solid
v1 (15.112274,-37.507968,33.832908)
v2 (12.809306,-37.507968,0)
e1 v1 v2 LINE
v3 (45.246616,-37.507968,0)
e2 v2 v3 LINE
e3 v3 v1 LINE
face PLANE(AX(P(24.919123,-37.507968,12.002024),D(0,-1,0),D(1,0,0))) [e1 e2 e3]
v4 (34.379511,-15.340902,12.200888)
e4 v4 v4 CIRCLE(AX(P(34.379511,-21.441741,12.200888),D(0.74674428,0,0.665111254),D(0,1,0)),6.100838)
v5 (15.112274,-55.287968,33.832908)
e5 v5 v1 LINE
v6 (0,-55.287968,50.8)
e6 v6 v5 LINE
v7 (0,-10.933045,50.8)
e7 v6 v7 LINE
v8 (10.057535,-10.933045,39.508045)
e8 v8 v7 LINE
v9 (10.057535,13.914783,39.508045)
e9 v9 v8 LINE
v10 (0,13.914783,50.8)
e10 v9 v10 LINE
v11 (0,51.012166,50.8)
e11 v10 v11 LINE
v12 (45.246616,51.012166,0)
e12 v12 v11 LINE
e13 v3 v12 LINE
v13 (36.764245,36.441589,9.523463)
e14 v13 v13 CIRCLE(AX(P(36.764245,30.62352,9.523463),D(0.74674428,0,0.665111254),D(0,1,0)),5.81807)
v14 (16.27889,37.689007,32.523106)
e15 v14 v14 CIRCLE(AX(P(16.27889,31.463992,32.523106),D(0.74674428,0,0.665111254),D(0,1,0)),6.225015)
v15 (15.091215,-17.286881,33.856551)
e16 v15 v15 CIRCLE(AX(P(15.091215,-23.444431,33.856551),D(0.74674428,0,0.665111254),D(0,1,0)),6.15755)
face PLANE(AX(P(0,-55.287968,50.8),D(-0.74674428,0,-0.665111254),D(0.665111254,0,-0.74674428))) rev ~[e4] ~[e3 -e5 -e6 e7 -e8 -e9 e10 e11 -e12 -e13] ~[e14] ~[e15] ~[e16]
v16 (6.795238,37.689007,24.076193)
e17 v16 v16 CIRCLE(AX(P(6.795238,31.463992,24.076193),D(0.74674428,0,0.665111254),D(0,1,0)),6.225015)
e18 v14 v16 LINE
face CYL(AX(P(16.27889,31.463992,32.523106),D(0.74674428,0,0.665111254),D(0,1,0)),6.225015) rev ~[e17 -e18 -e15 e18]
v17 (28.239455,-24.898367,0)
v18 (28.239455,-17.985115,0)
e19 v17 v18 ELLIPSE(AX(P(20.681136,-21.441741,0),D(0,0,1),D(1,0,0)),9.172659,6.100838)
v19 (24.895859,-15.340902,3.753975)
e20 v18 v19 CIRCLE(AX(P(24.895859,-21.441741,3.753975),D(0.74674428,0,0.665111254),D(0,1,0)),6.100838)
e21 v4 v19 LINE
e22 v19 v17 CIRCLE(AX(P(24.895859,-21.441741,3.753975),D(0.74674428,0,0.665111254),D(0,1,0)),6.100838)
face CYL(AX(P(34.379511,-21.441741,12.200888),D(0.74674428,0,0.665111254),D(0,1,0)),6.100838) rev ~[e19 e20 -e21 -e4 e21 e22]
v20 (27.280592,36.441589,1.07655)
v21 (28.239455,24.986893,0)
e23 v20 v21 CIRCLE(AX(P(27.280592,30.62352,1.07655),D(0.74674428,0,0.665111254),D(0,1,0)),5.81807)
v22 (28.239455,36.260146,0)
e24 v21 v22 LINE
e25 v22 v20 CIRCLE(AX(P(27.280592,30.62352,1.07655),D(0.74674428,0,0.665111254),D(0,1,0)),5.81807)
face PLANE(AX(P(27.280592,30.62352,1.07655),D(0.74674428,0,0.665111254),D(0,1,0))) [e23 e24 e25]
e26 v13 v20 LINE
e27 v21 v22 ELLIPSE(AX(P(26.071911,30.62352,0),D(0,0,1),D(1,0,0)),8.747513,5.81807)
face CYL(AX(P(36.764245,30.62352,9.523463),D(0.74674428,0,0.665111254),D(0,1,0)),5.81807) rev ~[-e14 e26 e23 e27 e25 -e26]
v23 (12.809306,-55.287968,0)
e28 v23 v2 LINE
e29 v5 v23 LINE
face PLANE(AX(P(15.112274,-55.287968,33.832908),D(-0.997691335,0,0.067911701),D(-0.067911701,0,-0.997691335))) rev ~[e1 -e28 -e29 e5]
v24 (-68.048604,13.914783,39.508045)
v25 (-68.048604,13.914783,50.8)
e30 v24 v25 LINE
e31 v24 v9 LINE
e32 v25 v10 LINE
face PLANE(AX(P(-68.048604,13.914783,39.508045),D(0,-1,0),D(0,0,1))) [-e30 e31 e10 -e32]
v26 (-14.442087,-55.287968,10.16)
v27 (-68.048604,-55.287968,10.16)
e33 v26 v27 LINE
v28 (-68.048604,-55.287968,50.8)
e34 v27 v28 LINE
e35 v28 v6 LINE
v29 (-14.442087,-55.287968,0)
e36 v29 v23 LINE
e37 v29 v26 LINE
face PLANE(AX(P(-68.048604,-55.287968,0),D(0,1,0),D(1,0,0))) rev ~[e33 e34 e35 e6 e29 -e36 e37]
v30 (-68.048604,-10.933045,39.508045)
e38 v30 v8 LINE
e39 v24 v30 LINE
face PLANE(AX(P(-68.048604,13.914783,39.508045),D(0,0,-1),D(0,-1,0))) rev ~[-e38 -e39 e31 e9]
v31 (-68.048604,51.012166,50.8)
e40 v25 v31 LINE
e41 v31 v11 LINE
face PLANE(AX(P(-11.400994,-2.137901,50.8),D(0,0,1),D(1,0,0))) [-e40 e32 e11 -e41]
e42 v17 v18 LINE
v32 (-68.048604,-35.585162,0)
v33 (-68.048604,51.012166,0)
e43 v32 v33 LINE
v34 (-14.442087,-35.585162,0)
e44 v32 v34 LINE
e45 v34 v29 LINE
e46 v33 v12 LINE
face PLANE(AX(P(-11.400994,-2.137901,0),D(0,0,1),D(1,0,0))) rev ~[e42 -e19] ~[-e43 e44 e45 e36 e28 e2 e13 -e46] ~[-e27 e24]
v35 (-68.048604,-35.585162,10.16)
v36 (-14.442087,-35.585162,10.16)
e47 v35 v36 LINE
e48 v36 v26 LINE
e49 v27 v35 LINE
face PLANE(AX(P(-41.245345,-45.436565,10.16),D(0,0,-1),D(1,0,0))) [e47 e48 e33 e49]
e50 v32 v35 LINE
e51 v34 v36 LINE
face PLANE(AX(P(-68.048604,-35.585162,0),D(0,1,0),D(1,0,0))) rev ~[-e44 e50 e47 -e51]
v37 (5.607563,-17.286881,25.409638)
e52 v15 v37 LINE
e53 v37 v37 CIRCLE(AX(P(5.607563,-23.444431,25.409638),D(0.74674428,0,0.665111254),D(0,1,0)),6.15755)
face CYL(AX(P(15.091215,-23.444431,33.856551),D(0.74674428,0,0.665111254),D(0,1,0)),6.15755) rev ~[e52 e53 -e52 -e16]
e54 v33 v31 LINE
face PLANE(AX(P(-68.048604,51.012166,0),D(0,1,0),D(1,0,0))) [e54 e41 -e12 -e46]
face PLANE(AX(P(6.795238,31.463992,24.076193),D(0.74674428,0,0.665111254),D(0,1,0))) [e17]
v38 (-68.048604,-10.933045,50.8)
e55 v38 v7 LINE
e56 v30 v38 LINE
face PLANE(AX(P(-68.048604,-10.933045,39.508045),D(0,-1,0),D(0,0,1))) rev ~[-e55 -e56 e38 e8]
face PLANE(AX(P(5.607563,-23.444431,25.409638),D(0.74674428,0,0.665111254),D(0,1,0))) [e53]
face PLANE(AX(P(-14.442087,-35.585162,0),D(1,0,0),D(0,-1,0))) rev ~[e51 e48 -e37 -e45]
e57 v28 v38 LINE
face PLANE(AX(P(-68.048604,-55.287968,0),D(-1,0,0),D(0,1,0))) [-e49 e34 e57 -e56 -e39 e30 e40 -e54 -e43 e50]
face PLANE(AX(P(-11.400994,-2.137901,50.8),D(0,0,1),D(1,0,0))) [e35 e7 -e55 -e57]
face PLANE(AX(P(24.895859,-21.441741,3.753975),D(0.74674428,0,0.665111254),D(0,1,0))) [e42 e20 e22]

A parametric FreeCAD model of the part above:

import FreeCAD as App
import Part
import Sketcher
Q = App.Units.Quantity

doc = App.newDocument("Part")
body = doc.addObject("PartDesign::Body", "Body")

# Sketch on XY plane
sketch1 = body.newObject("Sketcher::SketchObject", "Sketch")
sketch1.AttachmentSupport = (doc.getObject("XY_Plane"), [""])
sketch1.MapMode = "FlatFace"
sketch1.addGeometry(Part.LineSegment(App.Vector(-68, 51, 0), App.Vector(-68, -55, 0)), False)
sketch1.addGeometry(Part.LineSegment(App.Vector(-68, -55, 0), App.Vector(45, -55, 0)), False)
sketch1.addGeometry(Part.LineSegment(App.Vector(45, -55, 0), App.Vector(45, 51, 0)), False)
sketch1.addGeometry(Part.LineSegment(App.Vector(45, 51, 0), App.Vector(-68, 51, 0)), False)
sketch1.addConstraint(Sketcher.Constraint("Coincident", 0, 2, 1, 1))
sketch1.addConstraint(Sketcher.Constraint("Coincident", 1, 2, 2, 1))
sketch1.addConstraint(Sketcher.Constraint("Coincident", 2, 2, 3, 1))
sketch1.addConstraint(Sketcher.Constraint("Coincident", 3, 2, 0, 1))
sketch1.addConstraint(Sketcher.Constraint("Vertical", 0))
sketch1.addConstraint(Sketcher.Constraint("Horizontal", 1))
sketch1.addConstraint(Sketcher.Constraint("Vertical", 2))
sketch1.addConstraint(Sketcher.Constraint("Horizontal", 3))
sketch1.addConstraint(Sketcher.Constraint("DistanceX", 1, 1, 1, 2, Q("113.29522 mm")))
sketch1.addConstraint(Sketcher.Constraint("DistanceY", 0, 2, 0, 1, Q("106.300134 mm")))
sketch1.addConstraint(Sketcher.Constraint("DistanceY", 0, 2, -1, 1, Q("55.287968 mm")))
sketch1.addConstraint(Sketcher.Constraint("DistanceX", 0, 2, -1, 1, Q("68.048604 mm")))
pad1 = body.newObject("PartDesign::Pad", "Pad")
pad1.Profile = sketch1
pad1.Length = Q("2 in")

# Sketch on XZ plane
sketch2 = body.newObject("Sketcher::SketchObject", "Sketch001")
sketch2.AttachmentSupport = (doc.getObject("XZ_Plane"), [""])
sketch2.MapMode = "FlatFace"
sketch2.AttachmentOffset = App.Placement(App.Vector(0, 0, 55.287968), App.Rotation())
sketch2.addGeometry(Part.LineSegment(App.Vector(0, 51, 0), App.Vector(45, 0, 0)), False)
sketch2.addGeometry(Part.LineSegment(App.Vector(45, 0, 0), App.Vector(45, 51, 0)), False)
sketch2.addGeometry(Part.LineSegment(App.Vector(45, 51, 0), App.Vector(0, 51, 0)), False)
sketch2.addConstraint(Sketcher.Constraint("Coincident", 0, 2, 1, 1))
sketch2.addConstraint(Sketcher.Constraint("Coincident", 1, 2, 2, 1))
sketch2.addConstraint(Sketcher.Constraint("Coincident", 2, 2, 0, 1))
sketch2.addConstraint(Sketcher.Constraint("Vertical", 1))
sketch2.addConstraint(Sketcher.Constraint("Horizontal", 2))
sketch2.addConstraint(Sketcher.Constraint("PointOnObject", 0, 2, -1))
sketch2.addConstraint(Sketcher.Constraint("PointOnObject", 2, 2, -2))
sketch2.addConstraint(Sketcher.Constraint("DistanceY", 1, 1, 1, 2, Q("2 in")))
sketch2.addConstraint(Sketcher.Constraint("DistanceX", 2, 2, 2, 1, Q("45.246616 mm")))
pocket1 = body.newObject("PartDesign::Pocket", "Pocket")
pocket1.Profile = sketch2
pocket1.Type = "ThroughAll"

# Sketch on YZ plane
sketch3 = body.newObject("Sketcher::SketchObject", "Sketch002")
sketch3.AttachmentSupport = (doc.getObject("YZ_Plane"), [""])
sketch3.MapMode = "FlatFace"
sketch3.AttachmentOffset = App.Placement(App.Vector(0, 0, -68.048604), App.Rotation())
sketch3.addGeometry(Part.LineSegment(App.Vector(14, 51, 0), App.Vector(14, 40, 0)), False)
sketch3.addGeometry(Part.LineSegment(App.Vector(14, 40, 0), App.Vector(-11, 40, 0)), False)
sketch3.addGeometry(Part.LineSegment(App.Vector(-11, 40, 0), App.Vector(-11, 51, 0)), False)
sketch3.addGeometry(Part.LineSegment(App.Vector(-11, 51, 0), App.Vector(14, 51, 0)), False)
sketch3.addConstraint(Sketcher.Constraint("Coincident", 0, 2, 1, 1))
sketch3.addConstraint(Sketcher.Constraint("Coincident", 1, 2, 2, 1))
sketch3.addConstraint(Sketcher.Constraint("Coincident", 2, 2, 3, 1))
sketch3.addConstraint(Sketcher.Constraint("Coincident", 3, 2, 0, 1))
sketch3.addConstraint(Sketcher.Constraint("Vertical", 0))
sketch3.addConstraint(Sketcher.Constraint("Horizontal", 1))
sketch3.addConstraint(Sketcher.Constraint("Vertical", 2))
sketch3.addConstraint(Sketcher.Constraint("Horizontal", 3))
sketch3.addConstraint(Sketcher.Constraint("DistanceY", -1, 1, 2, 2, Q("2 in")))
sketch3.addConstraint(Sketcher.Constraint("DistanceX", 1, 2, 1, 1, Q("24.847828 mm")))
sketch3.addConstraint(Sketcher.Constraint("DistanceY", 0, 2, 0, 1, Q("11.291955 mm")))
sketch3.addConstraint(Sketcher.Constraint("DistanceX", -1, 1, 0, 2, Q("13.914783 mm")))
pocket2 = body.newObject("PartDesign::Pocket", "Pocket001")
pocket2.Profile = sketch3
pocket2.Type = "ThroughAll"
pocket2.Reversed = True

# Sketch on an angled plane
sketch4 = body.newObject("Sketcher::SketchObject", "Sketch003")
sketch4.Placement = App.Placement(App.Vector(25.230736, 0, 22.472547), App.Rotation(App.Vector(0, 1, 0), App.Vector(-0.665111254, 0, 0.74674428), App.Vector(0.74674428, 0, 0.665111254), "ZXY"))
sketch4.addGeometry(Part.Circle(App.Vector(-23, 15, 0), App.Vector(0, 0, 1), 6), False)
sketch4.addGeometry(Part.Circle(App.Vector(-21, -14, 0), App.Vector(0, 0, 1), 6), False)
sketch4.addGeometry(Part.Circle(App.Vector(31, 13, 0), App.Vector(0, 0, 1), 6), False)
sketch4.addGeometry(Part.Circle(App.Vector(31, -17, 0), App.Vector(0, 0, 1), 6), False)
sketch4.addConstraint(Sketcher.Constraint("Diameter", 0, Q("12.315099 mm")))
sketch4.addConstraint(Sketcher.Constraint("Diameter", 2, Q("12.450031 mm")))
sketch4.addConstraint(Sketcher.Constraint("Diameter", 3, Q("11.636139 mm")))
sketch4.addConstraint(Sketcher.Constraint("Diameter", 1, Q("12.201677 mm")))
sketch4.addConstraint(Sketcher.Constraint("DistanceX", 0, 3, -1, 1, Q("23.444431 mm")))
sketch4.addConstraint(Sketcher.Constraint("DistanceY", -1, 1, 0, 3, Q("15.244849 mm")))
sketch4.addConstraint(Sketcher.Constraint("DistanceX", 1, 3, -1, 1, Q("21.441741 mm")))
sketch4.addConstraint(Sketcher.Constraint("DistanceX", -1, 1, 2, 3, Q("31.463992 mm")))
sketch4.addConstraint(Sketcher.Constraint("DistanceY", -1, 1, 2, 3, Q("13.45917 mm")))
sketch4.addConstraint(Sketcher.Constraint("DistanceX", -1, 1, 3, 3, Q("30.62352 mm")))
sketch4.addConstraint(Sketcher.Constraint("DistanceY", 3, 3, -1, 1, Q("17.340722 mm")))
sketch4.addConstraint(Sketcher.Constraint("DistanceY", 1, 3, -1, 1, Q("13.755256 mm")))
pocket3 = body.newObject("PartDesign::Pocket", "Pocket002")
pocket3.Profile = sketch4
pocket3.Length = Q("0.5 in")

# Sketch on XZ plane
sketch5 = body.newObject("Sketcher::SketchObject", "Sketch004")
sketch5.AttachmentSupport = (doc.getObject("XZ_Plane"), [""])
sketch5.MapMode = "FlatFace"
sketch5.AttachmentOffset = App.Placement(App.Vector(0, 0, 55.287968), App.Rotation())
sketch5.addGeometry(Part.LineSegment(App.Vector(15, 34, 0), App.Vector(13, 0, 0)), False)
sketch5.addGeometry(Part.LineSegment(App.Vector(13, 0, 0), App.Vector(45, 0, 0)), False)
sketch5.addGeometry(Part.LineSegment(App.Vector(45, 0, 0), App.Vector(15, 34, 0)), False)
sketch5.addConstraint(Sketcher.Constraint("Coincident", 0, 2, 1, 1))
sketch5.addConstraint(Sketcher.Constraint("Coincident", 1, 2, 2, 1))
sketch5.addConstraint(Sketcher.Constraint("Coincident", 2, 2, 0, 1))
sketch5.addConstraint(Sketcher.Constraint("Horizontal", 1))
sketch5.addConstraint(Sketcher.Constraint("PointOnObject", 0, 2, -1))
sketch5.addConstraint(Sketcher.Constraint("DistanceX", 1, 1, 1, 2, Q("32.43731 mm")))
sketch5.addConstraint(Sketcher.Constraint("Distance", 2, Q("45.307221 mm")))
sketch5.addConstraint(Sketcher.Constraint("DistanceY", -1, 1, 2, 2, Q("33.832908 mm")))
sketch5.addConstraint(Sketcher.Constraint("DistanceX", -1, 1, 0, 2, Q("12.809306 mm")))
pocket4 = body.newObject("PartDesign::Pocket", "Pocket003")
pocket4.Profile = sketch5
pocket4.Length = Q("0.7 in")

# Sketch on XY plane
sketch6 = body.newObject("Sketcher::SketchObject", "Sketch005")
sketch6.AttachmentSupport = (doc.getObject("XY_Plane"), [""])
sketch6.MapMode = "FlatFace"
sketch6.addGeometry(Part.LineSegment(App.Vector(-14, -36, 0), App.Vector(-14, -55, 0)), False)
sketch6.addGeometry(Part.LineSegment(App.Vector(-14, -55, 0), App.Vector(-68, -55, 0)), False)
sketch6.addGeometry(Part.LineSegment(App.Vector(-68, -55, 0), App.Vector(-68, -36, 0)), False)
sketch6.addGeometry(Part.LineSegment(App.Vector(-68, -36, 0), App.Vector(-14, -36, 0)), False)
sketch6.addConstraint(Sketcher.Constraint("Coincident", 0, 2, 1, 1))
sketch6.addConstraint(Sketcher.Constraint("Coincident", 1, 2, 2, 1))
sketch6.addConstraint(Sketcher.Constraint("Coincident", 2, 2, 3, 1))
sketch6.addConstraint(Sketcher.Constraint("Coincident", 3, 2, 0, 1))
sketch6.addConstraint(Sketcher.Constraint("Vertical", 0))
sketch6.addConstraint(Sketcher.Constraint("Horizontal", 1))
sketch6.addConstraint(Sketcher.Constraint("Vertical", 2))
sketch6.addConstraint(Sketcher.Constraint("Horizontal", 3))
sketch6.addConstraint(Sketcher.Constraint("DistanceX", 1, 2, 1, 1, Q("53.606517 mm")))
sketch6.addConstraint(Sketcher.Constraint("DistanceY", 0, 2, 0, 1, Q("19.702806 mm")))
sketch6.addConstraint(Sketcher.Constraint("DistanceY", 0, 2, -1, 1, Q("55.287968 mm")))
sketch6.addConstraint(Sketcher.Constraint("DistanceX", 0, 2, -1, 1, Q("14.442087 mm")))
pocket5 = body.newObject("PartDesign::Pocket", "Pocket004")
pocket5.Profile = sketch6
pocket5.Length = Q("0.4 in")
pocket5.Reversed = True

doc.recompute()
